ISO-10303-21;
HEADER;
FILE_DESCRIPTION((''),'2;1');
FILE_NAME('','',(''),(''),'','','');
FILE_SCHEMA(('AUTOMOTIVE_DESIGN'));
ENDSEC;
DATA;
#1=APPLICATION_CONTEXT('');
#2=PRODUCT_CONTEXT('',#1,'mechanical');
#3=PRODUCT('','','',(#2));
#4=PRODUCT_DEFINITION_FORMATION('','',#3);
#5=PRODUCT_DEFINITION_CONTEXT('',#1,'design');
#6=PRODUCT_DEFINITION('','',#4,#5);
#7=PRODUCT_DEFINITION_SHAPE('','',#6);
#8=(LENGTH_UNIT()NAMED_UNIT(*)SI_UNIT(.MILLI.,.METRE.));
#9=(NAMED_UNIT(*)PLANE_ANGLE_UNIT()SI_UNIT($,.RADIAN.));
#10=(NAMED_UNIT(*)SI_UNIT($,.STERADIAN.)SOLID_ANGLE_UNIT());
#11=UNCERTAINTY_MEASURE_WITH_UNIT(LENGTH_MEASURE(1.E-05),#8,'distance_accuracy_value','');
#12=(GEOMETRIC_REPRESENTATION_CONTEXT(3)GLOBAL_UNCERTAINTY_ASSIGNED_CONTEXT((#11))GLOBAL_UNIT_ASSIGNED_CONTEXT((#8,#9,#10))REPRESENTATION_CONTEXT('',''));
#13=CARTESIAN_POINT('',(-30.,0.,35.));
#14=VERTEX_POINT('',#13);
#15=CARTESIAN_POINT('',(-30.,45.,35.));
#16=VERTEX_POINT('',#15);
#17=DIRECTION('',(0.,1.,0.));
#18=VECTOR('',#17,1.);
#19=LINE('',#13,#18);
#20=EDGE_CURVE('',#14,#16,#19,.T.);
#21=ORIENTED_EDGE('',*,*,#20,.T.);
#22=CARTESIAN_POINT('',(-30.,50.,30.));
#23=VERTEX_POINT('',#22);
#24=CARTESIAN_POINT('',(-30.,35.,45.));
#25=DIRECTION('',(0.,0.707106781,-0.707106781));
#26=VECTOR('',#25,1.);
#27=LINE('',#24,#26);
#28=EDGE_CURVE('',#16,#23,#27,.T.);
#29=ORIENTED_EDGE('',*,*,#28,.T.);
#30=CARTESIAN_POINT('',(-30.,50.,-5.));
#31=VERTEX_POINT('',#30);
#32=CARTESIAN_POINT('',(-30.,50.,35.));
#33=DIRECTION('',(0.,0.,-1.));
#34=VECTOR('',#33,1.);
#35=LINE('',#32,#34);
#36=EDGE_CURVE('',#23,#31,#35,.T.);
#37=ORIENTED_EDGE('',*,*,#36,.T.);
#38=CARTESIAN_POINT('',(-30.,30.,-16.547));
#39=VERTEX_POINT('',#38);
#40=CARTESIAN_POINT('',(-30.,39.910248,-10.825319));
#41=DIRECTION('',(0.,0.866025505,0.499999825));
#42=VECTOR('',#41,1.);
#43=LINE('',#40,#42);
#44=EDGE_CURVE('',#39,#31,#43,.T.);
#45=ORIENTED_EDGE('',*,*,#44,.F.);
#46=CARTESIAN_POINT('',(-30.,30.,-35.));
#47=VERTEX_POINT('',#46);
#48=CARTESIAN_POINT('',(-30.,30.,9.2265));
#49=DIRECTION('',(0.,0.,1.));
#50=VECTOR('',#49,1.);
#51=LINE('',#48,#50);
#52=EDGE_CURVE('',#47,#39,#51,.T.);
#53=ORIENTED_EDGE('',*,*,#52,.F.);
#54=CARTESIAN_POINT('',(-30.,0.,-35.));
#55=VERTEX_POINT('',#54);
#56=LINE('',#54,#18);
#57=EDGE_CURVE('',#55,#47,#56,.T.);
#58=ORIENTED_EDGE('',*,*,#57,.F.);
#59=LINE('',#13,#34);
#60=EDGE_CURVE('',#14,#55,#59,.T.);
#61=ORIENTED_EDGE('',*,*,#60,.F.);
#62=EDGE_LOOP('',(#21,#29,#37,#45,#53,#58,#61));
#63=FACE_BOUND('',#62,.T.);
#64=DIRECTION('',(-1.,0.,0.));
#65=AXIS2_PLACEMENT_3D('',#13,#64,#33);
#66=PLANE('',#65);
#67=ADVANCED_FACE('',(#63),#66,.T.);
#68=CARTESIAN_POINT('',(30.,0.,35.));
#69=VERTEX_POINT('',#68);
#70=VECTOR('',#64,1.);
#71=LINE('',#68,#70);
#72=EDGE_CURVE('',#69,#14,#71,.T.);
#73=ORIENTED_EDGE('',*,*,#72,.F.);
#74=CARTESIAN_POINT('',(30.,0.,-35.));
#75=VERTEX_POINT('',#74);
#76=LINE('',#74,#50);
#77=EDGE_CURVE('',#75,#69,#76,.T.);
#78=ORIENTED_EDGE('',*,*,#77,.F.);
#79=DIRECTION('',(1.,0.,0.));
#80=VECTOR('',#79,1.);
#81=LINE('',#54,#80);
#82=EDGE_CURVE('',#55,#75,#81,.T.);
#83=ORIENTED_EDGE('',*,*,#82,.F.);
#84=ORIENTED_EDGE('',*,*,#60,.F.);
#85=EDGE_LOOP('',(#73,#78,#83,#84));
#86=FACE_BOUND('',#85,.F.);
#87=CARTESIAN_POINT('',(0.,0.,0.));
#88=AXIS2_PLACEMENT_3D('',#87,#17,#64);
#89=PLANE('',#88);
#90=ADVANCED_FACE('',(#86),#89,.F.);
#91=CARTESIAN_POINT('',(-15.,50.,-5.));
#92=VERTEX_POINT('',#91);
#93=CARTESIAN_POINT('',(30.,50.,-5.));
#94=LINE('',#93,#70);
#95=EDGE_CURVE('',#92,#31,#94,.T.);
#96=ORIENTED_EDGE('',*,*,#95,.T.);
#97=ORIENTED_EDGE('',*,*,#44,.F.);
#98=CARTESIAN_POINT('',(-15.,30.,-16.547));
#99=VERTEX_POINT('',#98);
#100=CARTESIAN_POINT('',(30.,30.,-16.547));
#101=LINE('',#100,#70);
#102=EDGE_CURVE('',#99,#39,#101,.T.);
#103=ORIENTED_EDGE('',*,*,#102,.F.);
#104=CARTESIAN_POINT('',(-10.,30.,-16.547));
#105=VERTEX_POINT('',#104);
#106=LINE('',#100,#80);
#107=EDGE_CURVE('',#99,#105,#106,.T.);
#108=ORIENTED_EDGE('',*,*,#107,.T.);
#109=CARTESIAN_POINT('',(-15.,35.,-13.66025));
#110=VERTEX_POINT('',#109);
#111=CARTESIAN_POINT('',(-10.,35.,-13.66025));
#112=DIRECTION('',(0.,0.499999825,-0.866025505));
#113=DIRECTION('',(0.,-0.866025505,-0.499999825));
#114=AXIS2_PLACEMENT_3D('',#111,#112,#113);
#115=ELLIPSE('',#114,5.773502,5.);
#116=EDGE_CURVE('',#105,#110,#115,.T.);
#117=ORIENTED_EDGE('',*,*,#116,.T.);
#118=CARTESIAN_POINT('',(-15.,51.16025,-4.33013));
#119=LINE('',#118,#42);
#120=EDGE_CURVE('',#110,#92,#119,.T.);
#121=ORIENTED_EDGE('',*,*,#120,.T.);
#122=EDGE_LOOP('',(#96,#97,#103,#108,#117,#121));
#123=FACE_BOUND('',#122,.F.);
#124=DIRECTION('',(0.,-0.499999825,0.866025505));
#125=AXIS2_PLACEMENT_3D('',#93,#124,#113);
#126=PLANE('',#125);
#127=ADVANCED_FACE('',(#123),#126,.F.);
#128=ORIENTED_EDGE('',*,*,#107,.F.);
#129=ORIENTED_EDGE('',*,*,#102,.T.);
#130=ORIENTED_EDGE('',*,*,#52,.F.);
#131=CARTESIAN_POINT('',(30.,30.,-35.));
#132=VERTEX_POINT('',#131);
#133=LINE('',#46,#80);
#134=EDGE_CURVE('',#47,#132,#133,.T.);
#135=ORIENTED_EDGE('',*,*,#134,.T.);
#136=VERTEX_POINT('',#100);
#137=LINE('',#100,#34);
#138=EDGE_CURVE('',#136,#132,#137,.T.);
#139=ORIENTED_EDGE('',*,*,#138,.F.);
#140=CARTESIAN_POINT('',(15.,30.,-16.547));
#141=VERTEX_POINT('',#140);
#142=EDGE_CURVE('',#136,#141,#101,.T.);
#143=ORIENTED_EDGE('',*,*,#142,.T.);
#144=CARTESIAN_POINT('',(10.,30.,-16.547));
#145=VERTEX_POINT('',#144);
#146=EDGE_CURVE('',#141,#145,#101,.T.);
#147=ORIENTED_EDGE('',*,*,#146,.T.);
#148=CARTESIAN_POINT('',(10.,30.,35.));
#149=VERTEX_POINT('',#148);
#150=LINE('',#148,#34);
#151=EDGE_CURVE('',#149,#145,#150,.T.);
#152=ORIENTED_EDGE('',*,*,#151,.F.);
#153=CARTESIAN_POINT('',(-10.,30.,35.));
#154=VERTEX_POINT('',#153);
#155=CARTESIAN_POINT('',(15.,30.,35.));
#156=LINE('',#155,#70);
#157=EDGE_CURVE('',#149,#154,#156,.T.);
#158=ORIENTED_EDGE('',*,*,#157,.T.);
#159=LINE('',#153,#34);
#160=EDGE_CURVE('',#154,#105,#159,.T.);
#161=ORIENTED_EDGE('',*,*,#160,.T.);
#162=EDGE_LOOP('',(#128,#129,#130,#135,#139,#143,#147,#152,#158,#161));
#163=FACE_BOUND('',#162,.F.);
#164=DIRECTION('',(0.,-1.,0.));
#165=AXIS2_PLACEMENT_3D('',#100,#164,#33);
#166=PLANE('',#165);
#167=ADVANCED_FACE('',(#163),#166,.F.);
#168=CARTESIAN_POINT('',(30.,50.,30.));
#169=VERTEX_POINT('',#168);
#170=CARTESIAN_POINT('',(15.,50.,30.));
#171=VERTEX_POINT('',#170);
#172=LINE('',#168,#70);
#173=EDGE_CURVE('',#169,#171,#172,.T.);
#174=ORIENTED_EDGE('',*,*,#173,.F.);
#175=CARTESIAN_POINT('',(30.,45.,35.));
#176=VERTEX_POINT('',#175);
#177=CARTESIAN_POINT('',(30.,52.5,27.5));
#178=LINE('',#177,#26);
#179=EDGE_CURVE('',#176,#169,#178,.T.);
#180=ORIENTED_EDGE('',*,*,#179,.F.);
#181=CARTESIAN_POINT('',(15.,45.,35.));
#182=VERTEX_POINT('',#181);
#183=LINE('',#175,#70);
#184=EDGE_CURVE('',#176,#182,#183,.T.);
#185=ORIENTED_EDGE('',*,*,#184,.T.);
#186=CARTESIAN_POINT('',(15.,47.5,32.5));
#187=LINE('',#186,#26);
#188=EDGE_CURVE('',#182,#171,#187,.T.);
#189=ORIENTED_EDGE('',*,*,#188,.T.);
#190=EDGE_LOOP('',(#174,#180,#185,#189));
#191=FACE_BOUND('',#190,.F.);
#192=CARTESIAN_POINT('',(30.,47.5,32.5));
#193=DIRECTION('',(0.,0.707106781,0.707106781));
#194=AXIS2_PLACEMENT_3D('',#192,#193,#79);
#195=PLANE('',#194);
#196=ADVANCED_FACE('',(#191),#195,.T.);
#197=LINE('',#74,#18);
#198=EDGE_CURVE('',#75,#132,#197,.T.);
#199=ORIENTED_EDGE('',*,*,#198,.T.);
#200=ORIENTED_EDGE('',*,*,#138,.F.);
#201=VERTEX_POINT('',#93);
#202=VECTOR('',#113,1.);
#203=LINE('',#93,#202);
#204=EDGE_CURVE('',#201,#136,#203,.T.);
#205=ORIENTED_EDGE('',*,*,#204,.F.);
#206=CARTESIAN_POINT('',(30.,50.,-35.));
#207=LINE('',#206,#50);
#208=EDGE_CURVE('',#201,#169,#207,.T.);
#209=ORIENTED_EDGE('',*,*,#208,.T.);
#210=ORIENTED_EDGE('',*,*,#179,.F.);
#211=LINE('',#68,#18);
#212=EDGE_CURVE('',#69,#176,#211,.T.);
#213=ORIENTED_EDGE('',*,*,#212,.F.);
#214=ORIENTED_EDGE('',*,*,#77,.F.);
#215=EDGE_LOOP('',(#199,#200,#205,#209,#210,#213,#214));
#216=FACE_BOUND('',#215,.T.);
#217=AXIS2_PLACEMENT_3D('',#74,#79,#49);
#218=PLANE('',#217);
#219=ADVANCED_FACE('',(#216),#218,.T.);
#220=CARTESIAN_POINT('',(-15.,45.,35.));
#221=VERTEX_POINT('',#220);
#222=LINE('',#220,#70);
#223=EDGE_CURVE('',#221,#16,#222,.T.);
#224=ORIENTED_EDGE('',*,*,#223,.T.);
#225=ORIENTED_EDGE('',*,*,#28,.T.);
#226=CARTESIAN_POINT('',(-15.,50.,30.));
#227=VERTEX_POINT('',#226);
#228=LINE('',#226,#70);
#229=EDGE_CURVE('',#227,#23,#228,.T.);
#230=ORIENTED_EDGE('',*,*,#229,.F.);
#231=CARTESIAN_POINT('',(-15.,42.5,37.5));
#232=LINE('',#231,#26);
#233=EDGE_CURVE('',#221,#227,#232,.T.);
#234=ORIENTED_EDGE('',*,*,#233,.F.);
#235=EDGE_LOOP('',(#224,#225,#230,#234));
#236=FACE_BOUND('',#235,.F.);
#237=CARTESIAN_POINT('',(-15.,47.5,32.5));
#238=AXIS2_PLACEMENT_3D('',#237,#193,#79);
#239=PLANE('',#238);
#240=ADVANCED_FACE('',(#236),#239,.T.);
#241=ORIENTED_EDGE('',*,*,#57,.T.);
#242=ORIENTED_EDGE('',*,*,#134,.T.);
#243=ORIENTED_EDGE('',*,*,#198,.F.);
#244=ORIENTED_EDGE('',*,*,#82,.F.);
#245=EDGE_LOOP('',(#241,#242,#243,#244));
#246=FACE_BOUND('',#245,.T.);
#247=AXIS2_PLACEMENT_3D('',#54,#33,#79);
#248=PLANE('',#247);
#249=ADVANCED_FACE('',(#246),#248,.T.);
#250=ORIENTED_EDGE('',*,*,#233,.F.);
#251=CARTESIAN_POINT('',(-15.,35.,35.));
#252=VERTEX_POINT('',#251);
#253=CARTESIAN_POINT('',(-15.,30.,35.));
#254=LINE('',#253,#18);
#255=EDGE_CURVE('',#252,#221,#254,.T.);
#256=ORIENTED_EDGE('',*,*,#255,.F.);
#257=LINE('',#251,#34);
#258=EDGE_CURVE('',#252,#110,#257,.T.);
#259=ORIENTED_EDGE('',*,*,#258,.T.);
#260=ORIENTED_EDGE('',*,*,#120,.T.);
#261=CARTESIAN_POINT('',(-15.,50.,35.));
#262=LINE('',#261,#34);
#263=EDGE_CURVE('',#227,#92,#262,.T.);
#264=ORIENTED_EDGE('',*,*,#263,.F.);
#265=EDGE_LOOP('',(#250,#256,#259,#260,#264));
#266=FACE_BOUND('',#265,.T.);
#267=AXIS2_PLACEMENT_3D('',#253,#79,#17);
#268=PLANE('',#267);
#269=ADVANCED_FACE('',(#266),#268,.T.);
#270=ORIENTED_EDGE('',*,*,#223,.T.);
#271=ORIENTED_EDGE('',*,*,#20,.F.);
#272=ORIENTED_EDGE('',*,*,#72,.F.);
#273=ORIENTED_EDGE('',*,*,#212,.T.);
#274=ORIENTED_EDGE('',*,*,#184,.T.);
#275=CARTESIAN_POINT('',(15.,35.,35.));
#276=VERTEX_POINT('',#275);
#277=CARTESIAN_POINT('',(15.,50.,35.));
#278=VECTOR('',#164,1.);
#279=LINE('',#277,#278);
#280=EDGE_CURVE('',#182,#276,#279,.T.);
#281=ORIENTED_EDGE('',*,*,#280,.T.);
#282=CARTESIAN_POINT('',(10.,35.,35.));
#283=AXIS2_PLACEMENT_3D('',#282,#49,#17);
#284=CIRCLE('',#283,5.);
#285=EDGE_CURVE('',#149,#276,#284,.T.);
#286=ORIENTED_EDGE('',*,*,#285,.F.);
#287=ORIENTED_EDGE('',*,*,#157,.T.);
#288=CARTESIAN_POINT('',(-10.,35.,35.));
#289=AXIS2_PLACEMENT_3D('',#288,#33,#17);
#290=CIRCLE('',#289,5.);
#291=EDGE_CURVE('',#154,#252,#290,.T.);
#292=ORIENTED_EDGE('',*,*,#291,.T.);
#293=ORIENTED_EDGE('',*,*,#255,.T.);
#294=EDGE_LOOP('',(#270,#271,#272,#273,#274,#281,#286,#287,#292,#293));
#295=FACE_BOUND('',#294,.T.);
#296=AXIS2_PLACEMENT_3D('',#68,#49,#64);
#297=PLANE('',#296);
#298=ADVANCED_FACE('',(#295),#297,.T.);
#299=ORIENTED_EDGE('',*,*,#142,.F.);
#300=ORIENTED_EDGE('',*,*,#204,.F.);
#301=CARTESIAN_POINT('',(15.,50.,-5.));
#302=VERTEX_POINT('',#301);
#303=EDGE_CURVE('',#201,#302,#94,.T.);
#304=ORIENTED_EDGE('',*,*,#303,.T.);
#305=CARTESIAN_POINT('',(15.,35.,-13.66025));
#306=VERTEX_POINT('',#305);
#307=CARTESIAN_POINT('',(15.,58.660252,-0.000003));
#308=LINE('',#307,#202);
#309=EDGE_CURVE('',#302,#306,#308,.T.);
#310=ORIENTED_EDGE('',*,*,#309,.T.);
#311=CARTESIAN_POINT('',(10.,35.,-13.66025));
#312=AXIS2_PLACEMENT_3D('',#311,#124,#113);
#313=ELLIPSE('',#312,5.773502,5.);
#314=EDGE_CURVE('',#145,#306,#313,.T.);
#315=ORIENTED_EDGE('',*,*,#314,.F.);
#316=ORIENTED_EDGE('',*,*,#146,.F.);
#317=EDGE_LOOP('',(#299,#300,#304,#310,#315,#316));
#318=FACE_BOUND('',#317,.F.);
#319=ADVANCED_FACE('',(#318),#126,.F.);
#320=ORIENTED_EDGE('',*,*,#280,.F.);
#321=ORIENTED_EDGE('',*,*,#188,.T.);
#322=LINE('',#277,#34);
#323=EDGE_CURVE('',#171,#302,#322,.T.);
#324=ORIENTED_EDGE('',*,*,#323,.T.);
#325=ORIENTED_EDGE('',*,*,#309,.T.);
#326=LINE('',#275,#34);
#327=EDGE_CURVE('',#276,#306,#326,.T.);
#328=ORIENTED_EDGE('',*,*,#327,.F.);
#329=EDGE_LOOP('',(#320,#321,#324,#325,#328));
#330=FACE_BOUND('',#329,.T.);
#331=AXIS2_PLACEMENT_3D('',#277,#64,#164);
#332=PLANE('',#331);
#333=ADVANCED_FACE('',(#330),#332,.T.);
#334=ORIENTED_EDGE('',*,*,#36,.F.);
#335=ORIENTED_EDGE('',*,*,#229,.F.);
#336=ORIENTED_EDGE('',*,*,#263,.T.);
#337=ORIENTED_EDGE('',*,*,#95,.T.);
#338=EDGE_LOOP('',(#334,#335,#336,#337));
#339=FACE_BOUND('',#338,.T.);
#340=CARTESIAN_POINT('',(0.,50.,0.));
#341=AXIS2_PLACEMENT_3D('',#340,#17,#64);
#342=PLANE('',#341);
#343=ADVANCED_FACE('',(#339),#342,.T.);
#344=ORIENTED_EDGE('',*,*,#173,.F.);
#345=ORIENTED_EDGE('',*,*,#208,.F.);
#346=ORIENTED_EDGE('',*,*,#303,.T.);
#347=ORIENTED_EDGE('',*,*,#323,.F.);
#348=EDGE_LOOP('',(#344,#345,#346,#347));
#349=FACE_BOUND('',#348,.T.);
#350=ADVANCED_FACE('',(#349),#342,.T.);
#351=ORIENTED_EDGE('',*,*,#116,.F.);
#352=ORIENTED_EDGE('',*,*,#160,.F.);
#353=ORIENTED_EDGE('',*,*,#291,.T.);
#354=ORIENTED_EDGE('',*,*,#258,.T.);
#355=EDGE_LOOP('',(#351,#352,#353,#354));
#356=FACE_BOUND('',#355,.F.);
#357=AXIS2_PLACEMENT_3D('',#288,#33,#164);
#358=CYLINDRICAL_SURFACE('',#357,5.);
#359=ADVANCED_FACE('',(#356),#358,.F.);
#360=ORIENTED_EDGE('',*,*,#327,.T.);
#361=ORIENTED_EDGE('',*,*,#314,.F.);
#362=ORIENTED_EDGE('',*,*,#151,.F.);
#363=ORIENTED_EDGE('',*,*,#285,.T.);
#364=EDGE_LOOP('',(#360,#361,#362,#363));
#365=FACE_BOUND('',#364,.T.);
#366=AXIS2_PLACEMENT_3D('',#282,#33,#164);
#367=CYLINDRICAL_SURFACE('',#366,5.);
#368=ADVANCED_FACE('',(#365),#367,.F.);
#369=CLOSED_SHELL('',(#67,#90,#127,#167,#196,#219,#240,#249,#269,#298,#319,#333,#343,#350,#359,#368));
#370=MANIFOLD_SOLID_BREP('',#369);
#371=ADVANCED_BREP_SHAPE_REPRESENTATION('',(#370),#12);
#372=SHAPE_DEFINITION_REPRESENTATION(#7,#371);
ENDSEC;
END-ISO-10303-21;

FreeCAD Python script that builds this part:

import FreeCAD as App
import Part
import Sketcher
Q = App.Units.Quantity


def edges_at(feature, points):
    """Names of the edges that pass closest to the given points."""
    edges = feature.Shape.Edges
    near = lambda p: min(range(len(edges)), key=lambda i: edges[i].distToShape(Part.Vertex(*p))[0])
    return sorted({f"Edge{near(p) + 1}" for p in points})


def add_polygon(sketch, points):
    """Adds a closed chain of lines whose ends are joined by coincident constraints."""
    first, n = sketch.GeometryCount, len(points)
    for a, b in zip(points, points[1:] + points[:1]):
        sketch.addGeometry(Part.LineSegment(App.Vector(*a, 0), App.Vector(*b, 0)), False)
    for i in range(n):
        sketch.addConstraint(Sketcher.Constraint("Coincident", first + i, 2, first + (i + 1) % n, 1))

doc = App.newDocument("Part")
body = doc.addObject("PartDesign::Body", "Body")

# Sketch on XZ plane
sketch1 = doc.addObject("Sketcher::SketchObject", "Sketch")
body.addObject(sketch1)
sketch1.AttachmentSupport = (doc.XZ_Plane, [""])
sketch1.MapMode = "FlatFace"
add_polygon(sketch1, [(30, -35), (-30, -35), (-30, 35), (30, 35)])  # lines 0-3
sketch1.addConstraint([
    Sketcher.Constraint("Horizontal", 0),
    Sketcher.Constraint("Vertical", 1),
    Sketcher.Constraint("Horizontal", 2),
    Sketcher.Constraint("Vertical", 3),
    Sketcher.Constraint("Symmetric", 0, 2, 2, 2, -1, 1),
    Sketcher.Constraint("DistanceX", 0, 2, 0, 1, 60.0),
    Sketcher.Constraint("DistanceY", 1, 1, 1, 2, 70.0),
])
pad1 = doc.addObject("PartDesign::Pad", "Pad")
body.addObject(pad1)
pad1.Profile = sketch1
pad1.Length = 50
pad1.Reversed = True

# Sketch on YZ plane
sketch2 = doc.addObject("Sketcher::SketchObject", "Sketch001")
body.addObject(sketch2)
sketch2.AttachmentSupport = (doc.YZ_Plane, [""])
sketch2.MapMode = "FlatFace"
sketch2.AttachmentOffset = App.Placement(App.Vector(0, 0, 30), App.Rotation())
add_polygon(sketch2, [(50, -35), (50, -5), (30, -16.547), (30, -35)])  # lines 0-3
sketch2.addConstraint([
    Sketcher.Constraint("Vertical", 0),
    Sketcher.Constraint("Vertical", 2),
    Sketcher.Constraint("Horizontal", 3),
    Sketcher.Constraint("DistanceX", 3, 1, 3, 2, 20.0),
    Sketcher.Constraint("DistanceY", 0, 1, 0, 2, 30.0),
    Sketcher.Constraint("DistanceX", -1, 1, 1, 2, 30.0),
    Sketcher.Constraint("Angle", 1, Q("-150 deg")),
    Sketcher.Constraint("DistanceY", 0, 2, -1, 1, 5.0),
])
pocket1 = doc.addObject("PartDesign::Pocket", "Pocket")
body.addObject(pocket1)
pocket1.Profile = sketch2
pocket1.Type = "ThroughAll"

# Sketch on XY plane
sketch3 = doc.addObject("Sketcher::SketchObject", "Sketch002")
body.addObject(sketch3)
sketch3.AttachmentSupport = (doc.XY_Plane, [""])
sketch3.MapMode = "FlatFace"
sketch3.AttachmentOffset = App.Placement(App.Vector(0, 0, 35), App.Rotation())
add_polygon(sketch3, [(15, 50), (-15, 50), (-15, 30), (15, 30)])  # lines 0-3
sketch3.addConstraint([
    Sketcher.Constraint("Horizontal", 0),
    Sketcher.Constraint("Vertical", 1),
    Sketcher.Constraint("Horizontal", 2),
    Sketcher.Constraint("Vertical", 3),
    Sketcher.Constraint("DistanceX", 0, 2, 0, 1, 30.0),
    Sketcher.Constraint("DistanceY", 1, 2, 1, 1, 20.0),
    Sketcher.Constraint("DistanceY", -1, 1, 1, 2, 30.0),
    Sketcher.Constraint("DistanceX", 0, 2, -1, 1, 15.0),
])
pocket2 = doc.addObject("PartDesign::Pocket", "Pocket001")
body.addObject(pocket2)
pocket2.Profile = sketch3
pocket2.Type = "ThroughAll"
doc.recompute()

fillet = doc.addObject("PartDesign::Fillet", "Fillet")
body.addObject(fillet)
fillet.Base = (pocket2, edges_at(pocket2, [(-15, 30, 9.226), (15, 30, 9.226)]))
fillet.Radius = 5
doc.recompute()

chamfer = doc.addObject("PartDesign::Chamfer", "Chamfer")
body.addObject(chamfer)
chamfer.Base = (fillet, edges_at(fillet, [(-22.5, 50, 35), (22.5, 50, 35)]))
chamfer.Size = 5

doc.recompute()
